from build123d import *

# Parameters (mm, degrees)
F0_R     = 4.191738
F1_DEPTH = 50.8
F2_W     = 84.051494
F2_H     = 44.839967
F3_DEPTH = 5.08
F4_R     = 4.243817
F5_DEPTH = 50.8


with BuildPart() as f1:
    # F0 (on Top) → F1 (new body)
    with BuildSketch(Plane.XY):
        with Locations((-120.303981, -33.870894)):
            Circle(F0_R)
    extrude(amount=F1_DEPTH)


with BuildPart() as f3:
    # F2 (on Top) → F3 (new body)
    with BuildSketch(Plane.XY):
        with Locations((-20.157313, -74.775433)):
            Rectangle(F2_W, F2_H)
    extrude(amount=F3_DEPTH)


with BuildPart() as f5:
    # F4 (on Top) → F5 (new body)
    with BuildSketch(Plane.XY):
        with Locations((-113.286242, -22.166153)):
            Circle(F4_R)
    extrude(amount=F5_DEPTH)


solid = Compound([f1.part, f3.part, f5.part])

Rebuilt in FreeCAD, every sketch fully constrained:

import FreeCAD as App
import Part
import Sketcher
Q = App.Units.Quantity


def add_polygon(sketch, points):
    """Adds a closed chain of lines whose ends are joined by coincident constraints."""
    first, n = sketch.GeometryCount, len(points)
    for a, b in zip(points, points[1:] + points[:1]):
        sketch.addGeometry(Part.LineSegment(App.Vector(*a, 0), App.Vector(*b, 0)), False)
    for i in range(n):
        sketch.addConstraint(Sketcher.Constraint("Coincident", first + i, 2, first + (i + 1) % n, 1))

doc = App.newDocument("Part")
params = doc.addObject("Spreadsheet::Sheet", "Params")
for row, (alias, value) in enumerate([
    ("pad1_length", "2 in"),
    ("pad2_length", "0.2 in"),
    ("pad3_length", "2 in"),
], start=1):
    params.set(f"A{row}", alias)
    params.set(f"B{row}", "=" + value)
    params.setAlias(f"B{row}", alias)

body = doc.addObject("PartDesign::Body", "Body")

sketch1 = doc.addObject("Sketcher::SketchObject", "Sketch")
body.addObject(sketch1)
sketch1.AttachmentSupport = (doc.XY_Plane, [""])
sketch1.MapMode = "FlatFace"
sketch1.addGeometry(Part.Circle(App.Vector(-120.3, -33.9, 0), App.Vector(0, 0, 1), 4.2), False)
sketch1.addConstraint([
    Sketcher.Constraint("Diameter", 0, Q("8.383476 mm")),
    Sketcher.Constraint("DistanceX", 0, 3, -1, 1, Q("120.303981 mm")),
    Sketcher.Constraint("DistanceY", 0, 3, -1, 1, Q("33.870894 mm")),
])
pad1 = doc.addObject("PartDesign::Pad", "Pad")
body.addObject(pad1)
pad1.Profile = sketch1
pad1.setExpression("Length", "Params.pad1_length")
body2 = doc.addObject("PartDesign::Body", "Body001")

sketch2 = doc.addObject("Sketcher::SketchObject", "Sketch001")
body2.addObject(sketch2)
sketch2.AttachmentSupport = (doc.getObject("XY_Plane001"), [""])
sketch2.MapMode = "FlatFace"
add_polygon(sketch2, [(-62, -52), (-62, -97), (22, -97), (22, -52)])
sketch2.addConstraint([
    Sketcher.Constraint("Vertical", 0),
    Sketcher.Constraint("Horizontal", 1),
    Sketcher.Constraint("Vertical", 2),
    Sketcher.Constraint("Horizontal", 3),
    Sketcher.Constraint("DistanceX", 1, 1, 1, 2, Q("84.051494 mm")),
    Sketcher.Constraint("DistanceY", 0, 2, 0, 1, Q("44.839967 mm")),
    Sketcher.Constraint("DistanceX", 0, 2, -1, 1, Q("62.18306 mm")),
    Sketcher.Constraint("DistanceY", 2, 2, -1, 1, Q("52.355449 mm")),
])
pad2 = doc.addObject("PartDesign::Pad", "Pad001")
body2.addObject(pad2)
pad2.Profile = sketch2
pad2.setExpression("Length", "Params.pad2_length")
body3 = doc.addObject("PartDesign::Body", "Body002")

sketch3 = doc.addObject("Sketcher::SketchObject", "Sketch002")
body3.addObject(sketch3)
sketch3.AttachmentSupport = (doc.getObject("XY_Plane002"), [""])
sketch3.MapMode = "FlatFace"
sketch3.addGeometry(Part.Circle(App.Vector(-113.3, -22.2, 0), App.Vector(0, 0, 1), 4.2), False)
sketch3.addConstraint([
    Sketcher.Constraint("Diameter", 0, Q("8.487634 mm")),
    Sketcher.Constraint("DistanceX", 0, 3, -1, 1, Q("113.286242 mm")),
    Sketcher.Constraint("DistanceY", 0, 3, -1, 1, Q("22.166153 mm")),
])
pad3 = doc.addObject("PartDesign::Pad", "Pad002")
body3.addObject(pad3)
pad3.Profile = sketch3
pad3.setExpression("Length", "Params.pad3_length")

doc.recompute()
